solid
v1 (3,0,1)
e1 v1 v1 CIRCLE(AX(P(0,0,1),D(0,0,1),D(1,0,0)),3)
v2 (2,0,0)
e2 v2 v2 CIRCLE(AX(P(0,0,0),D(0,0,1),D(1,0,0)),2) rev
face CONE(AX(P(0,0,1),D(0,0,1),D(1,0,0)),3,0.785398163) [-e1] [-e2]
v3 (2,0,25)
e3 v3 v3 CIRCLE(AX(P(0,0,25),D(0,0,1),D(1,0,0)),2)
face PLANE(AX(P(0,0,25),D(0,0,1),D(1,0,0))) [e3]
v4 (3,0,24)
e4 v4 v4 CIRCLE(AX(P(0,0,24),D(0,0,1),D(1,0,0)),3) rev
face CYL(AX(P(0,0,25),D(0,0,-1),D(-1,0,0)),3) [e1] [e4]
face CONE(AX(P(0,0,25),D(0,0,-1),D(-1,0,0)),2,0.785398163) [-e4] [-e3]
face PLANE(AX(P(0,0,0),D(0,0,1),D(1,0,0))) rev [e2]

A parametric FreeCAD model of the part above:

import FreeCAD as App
import Part
import Sketcher
Q = App.Units.Quantity


def edges_at(feature, points):
    """Names of the edges that pass closest to the given points."""
    edges = feature.Shape.Edges
    near = lambda p: min(range(len(edges)), key=lambda i: edges[i].distToShape(Part.Vertex(*p))[0])
    return sorted({f"Edge{near(p) + 1}" for p in points})

doc = App.newDocument("Part")
body = doc.addObject("PartDesign::Body", "Body")

sketch1 = body.newObject("Sketcher::SketchObject", "Sketch")
sketch1.AttachmentSupport = (doc.getObject("XY_Plane"), [""])
sketch1.MapMode = "FlatFace"
sketch1.addGeometry(Part.Circle(App.Vector(0, 0, 0), App.Vector(0, 0, 1), 3), False)
sketch1.addConstraint(Sketcher.Constraint("Coincident", 0, 3, -1, 1))
sketch1.addConstraint(Sketcher.Constraint("Diameter", 0, Q("6 mm")))
pad1 = body.newObject("PartDesign::Pad", "Pad")
pad1.Profile = sketch1
pad1.Length = 25
doc.recompute()

chamfer = body.newObject("PartDesign::Chamfer", "Chamfer")
chamfer.Base = (pad1, edges_at(pad1, [(-3, 0, 0), (-3, 0, 25)]))
chamfer.Size = 1

doc.recompute()
